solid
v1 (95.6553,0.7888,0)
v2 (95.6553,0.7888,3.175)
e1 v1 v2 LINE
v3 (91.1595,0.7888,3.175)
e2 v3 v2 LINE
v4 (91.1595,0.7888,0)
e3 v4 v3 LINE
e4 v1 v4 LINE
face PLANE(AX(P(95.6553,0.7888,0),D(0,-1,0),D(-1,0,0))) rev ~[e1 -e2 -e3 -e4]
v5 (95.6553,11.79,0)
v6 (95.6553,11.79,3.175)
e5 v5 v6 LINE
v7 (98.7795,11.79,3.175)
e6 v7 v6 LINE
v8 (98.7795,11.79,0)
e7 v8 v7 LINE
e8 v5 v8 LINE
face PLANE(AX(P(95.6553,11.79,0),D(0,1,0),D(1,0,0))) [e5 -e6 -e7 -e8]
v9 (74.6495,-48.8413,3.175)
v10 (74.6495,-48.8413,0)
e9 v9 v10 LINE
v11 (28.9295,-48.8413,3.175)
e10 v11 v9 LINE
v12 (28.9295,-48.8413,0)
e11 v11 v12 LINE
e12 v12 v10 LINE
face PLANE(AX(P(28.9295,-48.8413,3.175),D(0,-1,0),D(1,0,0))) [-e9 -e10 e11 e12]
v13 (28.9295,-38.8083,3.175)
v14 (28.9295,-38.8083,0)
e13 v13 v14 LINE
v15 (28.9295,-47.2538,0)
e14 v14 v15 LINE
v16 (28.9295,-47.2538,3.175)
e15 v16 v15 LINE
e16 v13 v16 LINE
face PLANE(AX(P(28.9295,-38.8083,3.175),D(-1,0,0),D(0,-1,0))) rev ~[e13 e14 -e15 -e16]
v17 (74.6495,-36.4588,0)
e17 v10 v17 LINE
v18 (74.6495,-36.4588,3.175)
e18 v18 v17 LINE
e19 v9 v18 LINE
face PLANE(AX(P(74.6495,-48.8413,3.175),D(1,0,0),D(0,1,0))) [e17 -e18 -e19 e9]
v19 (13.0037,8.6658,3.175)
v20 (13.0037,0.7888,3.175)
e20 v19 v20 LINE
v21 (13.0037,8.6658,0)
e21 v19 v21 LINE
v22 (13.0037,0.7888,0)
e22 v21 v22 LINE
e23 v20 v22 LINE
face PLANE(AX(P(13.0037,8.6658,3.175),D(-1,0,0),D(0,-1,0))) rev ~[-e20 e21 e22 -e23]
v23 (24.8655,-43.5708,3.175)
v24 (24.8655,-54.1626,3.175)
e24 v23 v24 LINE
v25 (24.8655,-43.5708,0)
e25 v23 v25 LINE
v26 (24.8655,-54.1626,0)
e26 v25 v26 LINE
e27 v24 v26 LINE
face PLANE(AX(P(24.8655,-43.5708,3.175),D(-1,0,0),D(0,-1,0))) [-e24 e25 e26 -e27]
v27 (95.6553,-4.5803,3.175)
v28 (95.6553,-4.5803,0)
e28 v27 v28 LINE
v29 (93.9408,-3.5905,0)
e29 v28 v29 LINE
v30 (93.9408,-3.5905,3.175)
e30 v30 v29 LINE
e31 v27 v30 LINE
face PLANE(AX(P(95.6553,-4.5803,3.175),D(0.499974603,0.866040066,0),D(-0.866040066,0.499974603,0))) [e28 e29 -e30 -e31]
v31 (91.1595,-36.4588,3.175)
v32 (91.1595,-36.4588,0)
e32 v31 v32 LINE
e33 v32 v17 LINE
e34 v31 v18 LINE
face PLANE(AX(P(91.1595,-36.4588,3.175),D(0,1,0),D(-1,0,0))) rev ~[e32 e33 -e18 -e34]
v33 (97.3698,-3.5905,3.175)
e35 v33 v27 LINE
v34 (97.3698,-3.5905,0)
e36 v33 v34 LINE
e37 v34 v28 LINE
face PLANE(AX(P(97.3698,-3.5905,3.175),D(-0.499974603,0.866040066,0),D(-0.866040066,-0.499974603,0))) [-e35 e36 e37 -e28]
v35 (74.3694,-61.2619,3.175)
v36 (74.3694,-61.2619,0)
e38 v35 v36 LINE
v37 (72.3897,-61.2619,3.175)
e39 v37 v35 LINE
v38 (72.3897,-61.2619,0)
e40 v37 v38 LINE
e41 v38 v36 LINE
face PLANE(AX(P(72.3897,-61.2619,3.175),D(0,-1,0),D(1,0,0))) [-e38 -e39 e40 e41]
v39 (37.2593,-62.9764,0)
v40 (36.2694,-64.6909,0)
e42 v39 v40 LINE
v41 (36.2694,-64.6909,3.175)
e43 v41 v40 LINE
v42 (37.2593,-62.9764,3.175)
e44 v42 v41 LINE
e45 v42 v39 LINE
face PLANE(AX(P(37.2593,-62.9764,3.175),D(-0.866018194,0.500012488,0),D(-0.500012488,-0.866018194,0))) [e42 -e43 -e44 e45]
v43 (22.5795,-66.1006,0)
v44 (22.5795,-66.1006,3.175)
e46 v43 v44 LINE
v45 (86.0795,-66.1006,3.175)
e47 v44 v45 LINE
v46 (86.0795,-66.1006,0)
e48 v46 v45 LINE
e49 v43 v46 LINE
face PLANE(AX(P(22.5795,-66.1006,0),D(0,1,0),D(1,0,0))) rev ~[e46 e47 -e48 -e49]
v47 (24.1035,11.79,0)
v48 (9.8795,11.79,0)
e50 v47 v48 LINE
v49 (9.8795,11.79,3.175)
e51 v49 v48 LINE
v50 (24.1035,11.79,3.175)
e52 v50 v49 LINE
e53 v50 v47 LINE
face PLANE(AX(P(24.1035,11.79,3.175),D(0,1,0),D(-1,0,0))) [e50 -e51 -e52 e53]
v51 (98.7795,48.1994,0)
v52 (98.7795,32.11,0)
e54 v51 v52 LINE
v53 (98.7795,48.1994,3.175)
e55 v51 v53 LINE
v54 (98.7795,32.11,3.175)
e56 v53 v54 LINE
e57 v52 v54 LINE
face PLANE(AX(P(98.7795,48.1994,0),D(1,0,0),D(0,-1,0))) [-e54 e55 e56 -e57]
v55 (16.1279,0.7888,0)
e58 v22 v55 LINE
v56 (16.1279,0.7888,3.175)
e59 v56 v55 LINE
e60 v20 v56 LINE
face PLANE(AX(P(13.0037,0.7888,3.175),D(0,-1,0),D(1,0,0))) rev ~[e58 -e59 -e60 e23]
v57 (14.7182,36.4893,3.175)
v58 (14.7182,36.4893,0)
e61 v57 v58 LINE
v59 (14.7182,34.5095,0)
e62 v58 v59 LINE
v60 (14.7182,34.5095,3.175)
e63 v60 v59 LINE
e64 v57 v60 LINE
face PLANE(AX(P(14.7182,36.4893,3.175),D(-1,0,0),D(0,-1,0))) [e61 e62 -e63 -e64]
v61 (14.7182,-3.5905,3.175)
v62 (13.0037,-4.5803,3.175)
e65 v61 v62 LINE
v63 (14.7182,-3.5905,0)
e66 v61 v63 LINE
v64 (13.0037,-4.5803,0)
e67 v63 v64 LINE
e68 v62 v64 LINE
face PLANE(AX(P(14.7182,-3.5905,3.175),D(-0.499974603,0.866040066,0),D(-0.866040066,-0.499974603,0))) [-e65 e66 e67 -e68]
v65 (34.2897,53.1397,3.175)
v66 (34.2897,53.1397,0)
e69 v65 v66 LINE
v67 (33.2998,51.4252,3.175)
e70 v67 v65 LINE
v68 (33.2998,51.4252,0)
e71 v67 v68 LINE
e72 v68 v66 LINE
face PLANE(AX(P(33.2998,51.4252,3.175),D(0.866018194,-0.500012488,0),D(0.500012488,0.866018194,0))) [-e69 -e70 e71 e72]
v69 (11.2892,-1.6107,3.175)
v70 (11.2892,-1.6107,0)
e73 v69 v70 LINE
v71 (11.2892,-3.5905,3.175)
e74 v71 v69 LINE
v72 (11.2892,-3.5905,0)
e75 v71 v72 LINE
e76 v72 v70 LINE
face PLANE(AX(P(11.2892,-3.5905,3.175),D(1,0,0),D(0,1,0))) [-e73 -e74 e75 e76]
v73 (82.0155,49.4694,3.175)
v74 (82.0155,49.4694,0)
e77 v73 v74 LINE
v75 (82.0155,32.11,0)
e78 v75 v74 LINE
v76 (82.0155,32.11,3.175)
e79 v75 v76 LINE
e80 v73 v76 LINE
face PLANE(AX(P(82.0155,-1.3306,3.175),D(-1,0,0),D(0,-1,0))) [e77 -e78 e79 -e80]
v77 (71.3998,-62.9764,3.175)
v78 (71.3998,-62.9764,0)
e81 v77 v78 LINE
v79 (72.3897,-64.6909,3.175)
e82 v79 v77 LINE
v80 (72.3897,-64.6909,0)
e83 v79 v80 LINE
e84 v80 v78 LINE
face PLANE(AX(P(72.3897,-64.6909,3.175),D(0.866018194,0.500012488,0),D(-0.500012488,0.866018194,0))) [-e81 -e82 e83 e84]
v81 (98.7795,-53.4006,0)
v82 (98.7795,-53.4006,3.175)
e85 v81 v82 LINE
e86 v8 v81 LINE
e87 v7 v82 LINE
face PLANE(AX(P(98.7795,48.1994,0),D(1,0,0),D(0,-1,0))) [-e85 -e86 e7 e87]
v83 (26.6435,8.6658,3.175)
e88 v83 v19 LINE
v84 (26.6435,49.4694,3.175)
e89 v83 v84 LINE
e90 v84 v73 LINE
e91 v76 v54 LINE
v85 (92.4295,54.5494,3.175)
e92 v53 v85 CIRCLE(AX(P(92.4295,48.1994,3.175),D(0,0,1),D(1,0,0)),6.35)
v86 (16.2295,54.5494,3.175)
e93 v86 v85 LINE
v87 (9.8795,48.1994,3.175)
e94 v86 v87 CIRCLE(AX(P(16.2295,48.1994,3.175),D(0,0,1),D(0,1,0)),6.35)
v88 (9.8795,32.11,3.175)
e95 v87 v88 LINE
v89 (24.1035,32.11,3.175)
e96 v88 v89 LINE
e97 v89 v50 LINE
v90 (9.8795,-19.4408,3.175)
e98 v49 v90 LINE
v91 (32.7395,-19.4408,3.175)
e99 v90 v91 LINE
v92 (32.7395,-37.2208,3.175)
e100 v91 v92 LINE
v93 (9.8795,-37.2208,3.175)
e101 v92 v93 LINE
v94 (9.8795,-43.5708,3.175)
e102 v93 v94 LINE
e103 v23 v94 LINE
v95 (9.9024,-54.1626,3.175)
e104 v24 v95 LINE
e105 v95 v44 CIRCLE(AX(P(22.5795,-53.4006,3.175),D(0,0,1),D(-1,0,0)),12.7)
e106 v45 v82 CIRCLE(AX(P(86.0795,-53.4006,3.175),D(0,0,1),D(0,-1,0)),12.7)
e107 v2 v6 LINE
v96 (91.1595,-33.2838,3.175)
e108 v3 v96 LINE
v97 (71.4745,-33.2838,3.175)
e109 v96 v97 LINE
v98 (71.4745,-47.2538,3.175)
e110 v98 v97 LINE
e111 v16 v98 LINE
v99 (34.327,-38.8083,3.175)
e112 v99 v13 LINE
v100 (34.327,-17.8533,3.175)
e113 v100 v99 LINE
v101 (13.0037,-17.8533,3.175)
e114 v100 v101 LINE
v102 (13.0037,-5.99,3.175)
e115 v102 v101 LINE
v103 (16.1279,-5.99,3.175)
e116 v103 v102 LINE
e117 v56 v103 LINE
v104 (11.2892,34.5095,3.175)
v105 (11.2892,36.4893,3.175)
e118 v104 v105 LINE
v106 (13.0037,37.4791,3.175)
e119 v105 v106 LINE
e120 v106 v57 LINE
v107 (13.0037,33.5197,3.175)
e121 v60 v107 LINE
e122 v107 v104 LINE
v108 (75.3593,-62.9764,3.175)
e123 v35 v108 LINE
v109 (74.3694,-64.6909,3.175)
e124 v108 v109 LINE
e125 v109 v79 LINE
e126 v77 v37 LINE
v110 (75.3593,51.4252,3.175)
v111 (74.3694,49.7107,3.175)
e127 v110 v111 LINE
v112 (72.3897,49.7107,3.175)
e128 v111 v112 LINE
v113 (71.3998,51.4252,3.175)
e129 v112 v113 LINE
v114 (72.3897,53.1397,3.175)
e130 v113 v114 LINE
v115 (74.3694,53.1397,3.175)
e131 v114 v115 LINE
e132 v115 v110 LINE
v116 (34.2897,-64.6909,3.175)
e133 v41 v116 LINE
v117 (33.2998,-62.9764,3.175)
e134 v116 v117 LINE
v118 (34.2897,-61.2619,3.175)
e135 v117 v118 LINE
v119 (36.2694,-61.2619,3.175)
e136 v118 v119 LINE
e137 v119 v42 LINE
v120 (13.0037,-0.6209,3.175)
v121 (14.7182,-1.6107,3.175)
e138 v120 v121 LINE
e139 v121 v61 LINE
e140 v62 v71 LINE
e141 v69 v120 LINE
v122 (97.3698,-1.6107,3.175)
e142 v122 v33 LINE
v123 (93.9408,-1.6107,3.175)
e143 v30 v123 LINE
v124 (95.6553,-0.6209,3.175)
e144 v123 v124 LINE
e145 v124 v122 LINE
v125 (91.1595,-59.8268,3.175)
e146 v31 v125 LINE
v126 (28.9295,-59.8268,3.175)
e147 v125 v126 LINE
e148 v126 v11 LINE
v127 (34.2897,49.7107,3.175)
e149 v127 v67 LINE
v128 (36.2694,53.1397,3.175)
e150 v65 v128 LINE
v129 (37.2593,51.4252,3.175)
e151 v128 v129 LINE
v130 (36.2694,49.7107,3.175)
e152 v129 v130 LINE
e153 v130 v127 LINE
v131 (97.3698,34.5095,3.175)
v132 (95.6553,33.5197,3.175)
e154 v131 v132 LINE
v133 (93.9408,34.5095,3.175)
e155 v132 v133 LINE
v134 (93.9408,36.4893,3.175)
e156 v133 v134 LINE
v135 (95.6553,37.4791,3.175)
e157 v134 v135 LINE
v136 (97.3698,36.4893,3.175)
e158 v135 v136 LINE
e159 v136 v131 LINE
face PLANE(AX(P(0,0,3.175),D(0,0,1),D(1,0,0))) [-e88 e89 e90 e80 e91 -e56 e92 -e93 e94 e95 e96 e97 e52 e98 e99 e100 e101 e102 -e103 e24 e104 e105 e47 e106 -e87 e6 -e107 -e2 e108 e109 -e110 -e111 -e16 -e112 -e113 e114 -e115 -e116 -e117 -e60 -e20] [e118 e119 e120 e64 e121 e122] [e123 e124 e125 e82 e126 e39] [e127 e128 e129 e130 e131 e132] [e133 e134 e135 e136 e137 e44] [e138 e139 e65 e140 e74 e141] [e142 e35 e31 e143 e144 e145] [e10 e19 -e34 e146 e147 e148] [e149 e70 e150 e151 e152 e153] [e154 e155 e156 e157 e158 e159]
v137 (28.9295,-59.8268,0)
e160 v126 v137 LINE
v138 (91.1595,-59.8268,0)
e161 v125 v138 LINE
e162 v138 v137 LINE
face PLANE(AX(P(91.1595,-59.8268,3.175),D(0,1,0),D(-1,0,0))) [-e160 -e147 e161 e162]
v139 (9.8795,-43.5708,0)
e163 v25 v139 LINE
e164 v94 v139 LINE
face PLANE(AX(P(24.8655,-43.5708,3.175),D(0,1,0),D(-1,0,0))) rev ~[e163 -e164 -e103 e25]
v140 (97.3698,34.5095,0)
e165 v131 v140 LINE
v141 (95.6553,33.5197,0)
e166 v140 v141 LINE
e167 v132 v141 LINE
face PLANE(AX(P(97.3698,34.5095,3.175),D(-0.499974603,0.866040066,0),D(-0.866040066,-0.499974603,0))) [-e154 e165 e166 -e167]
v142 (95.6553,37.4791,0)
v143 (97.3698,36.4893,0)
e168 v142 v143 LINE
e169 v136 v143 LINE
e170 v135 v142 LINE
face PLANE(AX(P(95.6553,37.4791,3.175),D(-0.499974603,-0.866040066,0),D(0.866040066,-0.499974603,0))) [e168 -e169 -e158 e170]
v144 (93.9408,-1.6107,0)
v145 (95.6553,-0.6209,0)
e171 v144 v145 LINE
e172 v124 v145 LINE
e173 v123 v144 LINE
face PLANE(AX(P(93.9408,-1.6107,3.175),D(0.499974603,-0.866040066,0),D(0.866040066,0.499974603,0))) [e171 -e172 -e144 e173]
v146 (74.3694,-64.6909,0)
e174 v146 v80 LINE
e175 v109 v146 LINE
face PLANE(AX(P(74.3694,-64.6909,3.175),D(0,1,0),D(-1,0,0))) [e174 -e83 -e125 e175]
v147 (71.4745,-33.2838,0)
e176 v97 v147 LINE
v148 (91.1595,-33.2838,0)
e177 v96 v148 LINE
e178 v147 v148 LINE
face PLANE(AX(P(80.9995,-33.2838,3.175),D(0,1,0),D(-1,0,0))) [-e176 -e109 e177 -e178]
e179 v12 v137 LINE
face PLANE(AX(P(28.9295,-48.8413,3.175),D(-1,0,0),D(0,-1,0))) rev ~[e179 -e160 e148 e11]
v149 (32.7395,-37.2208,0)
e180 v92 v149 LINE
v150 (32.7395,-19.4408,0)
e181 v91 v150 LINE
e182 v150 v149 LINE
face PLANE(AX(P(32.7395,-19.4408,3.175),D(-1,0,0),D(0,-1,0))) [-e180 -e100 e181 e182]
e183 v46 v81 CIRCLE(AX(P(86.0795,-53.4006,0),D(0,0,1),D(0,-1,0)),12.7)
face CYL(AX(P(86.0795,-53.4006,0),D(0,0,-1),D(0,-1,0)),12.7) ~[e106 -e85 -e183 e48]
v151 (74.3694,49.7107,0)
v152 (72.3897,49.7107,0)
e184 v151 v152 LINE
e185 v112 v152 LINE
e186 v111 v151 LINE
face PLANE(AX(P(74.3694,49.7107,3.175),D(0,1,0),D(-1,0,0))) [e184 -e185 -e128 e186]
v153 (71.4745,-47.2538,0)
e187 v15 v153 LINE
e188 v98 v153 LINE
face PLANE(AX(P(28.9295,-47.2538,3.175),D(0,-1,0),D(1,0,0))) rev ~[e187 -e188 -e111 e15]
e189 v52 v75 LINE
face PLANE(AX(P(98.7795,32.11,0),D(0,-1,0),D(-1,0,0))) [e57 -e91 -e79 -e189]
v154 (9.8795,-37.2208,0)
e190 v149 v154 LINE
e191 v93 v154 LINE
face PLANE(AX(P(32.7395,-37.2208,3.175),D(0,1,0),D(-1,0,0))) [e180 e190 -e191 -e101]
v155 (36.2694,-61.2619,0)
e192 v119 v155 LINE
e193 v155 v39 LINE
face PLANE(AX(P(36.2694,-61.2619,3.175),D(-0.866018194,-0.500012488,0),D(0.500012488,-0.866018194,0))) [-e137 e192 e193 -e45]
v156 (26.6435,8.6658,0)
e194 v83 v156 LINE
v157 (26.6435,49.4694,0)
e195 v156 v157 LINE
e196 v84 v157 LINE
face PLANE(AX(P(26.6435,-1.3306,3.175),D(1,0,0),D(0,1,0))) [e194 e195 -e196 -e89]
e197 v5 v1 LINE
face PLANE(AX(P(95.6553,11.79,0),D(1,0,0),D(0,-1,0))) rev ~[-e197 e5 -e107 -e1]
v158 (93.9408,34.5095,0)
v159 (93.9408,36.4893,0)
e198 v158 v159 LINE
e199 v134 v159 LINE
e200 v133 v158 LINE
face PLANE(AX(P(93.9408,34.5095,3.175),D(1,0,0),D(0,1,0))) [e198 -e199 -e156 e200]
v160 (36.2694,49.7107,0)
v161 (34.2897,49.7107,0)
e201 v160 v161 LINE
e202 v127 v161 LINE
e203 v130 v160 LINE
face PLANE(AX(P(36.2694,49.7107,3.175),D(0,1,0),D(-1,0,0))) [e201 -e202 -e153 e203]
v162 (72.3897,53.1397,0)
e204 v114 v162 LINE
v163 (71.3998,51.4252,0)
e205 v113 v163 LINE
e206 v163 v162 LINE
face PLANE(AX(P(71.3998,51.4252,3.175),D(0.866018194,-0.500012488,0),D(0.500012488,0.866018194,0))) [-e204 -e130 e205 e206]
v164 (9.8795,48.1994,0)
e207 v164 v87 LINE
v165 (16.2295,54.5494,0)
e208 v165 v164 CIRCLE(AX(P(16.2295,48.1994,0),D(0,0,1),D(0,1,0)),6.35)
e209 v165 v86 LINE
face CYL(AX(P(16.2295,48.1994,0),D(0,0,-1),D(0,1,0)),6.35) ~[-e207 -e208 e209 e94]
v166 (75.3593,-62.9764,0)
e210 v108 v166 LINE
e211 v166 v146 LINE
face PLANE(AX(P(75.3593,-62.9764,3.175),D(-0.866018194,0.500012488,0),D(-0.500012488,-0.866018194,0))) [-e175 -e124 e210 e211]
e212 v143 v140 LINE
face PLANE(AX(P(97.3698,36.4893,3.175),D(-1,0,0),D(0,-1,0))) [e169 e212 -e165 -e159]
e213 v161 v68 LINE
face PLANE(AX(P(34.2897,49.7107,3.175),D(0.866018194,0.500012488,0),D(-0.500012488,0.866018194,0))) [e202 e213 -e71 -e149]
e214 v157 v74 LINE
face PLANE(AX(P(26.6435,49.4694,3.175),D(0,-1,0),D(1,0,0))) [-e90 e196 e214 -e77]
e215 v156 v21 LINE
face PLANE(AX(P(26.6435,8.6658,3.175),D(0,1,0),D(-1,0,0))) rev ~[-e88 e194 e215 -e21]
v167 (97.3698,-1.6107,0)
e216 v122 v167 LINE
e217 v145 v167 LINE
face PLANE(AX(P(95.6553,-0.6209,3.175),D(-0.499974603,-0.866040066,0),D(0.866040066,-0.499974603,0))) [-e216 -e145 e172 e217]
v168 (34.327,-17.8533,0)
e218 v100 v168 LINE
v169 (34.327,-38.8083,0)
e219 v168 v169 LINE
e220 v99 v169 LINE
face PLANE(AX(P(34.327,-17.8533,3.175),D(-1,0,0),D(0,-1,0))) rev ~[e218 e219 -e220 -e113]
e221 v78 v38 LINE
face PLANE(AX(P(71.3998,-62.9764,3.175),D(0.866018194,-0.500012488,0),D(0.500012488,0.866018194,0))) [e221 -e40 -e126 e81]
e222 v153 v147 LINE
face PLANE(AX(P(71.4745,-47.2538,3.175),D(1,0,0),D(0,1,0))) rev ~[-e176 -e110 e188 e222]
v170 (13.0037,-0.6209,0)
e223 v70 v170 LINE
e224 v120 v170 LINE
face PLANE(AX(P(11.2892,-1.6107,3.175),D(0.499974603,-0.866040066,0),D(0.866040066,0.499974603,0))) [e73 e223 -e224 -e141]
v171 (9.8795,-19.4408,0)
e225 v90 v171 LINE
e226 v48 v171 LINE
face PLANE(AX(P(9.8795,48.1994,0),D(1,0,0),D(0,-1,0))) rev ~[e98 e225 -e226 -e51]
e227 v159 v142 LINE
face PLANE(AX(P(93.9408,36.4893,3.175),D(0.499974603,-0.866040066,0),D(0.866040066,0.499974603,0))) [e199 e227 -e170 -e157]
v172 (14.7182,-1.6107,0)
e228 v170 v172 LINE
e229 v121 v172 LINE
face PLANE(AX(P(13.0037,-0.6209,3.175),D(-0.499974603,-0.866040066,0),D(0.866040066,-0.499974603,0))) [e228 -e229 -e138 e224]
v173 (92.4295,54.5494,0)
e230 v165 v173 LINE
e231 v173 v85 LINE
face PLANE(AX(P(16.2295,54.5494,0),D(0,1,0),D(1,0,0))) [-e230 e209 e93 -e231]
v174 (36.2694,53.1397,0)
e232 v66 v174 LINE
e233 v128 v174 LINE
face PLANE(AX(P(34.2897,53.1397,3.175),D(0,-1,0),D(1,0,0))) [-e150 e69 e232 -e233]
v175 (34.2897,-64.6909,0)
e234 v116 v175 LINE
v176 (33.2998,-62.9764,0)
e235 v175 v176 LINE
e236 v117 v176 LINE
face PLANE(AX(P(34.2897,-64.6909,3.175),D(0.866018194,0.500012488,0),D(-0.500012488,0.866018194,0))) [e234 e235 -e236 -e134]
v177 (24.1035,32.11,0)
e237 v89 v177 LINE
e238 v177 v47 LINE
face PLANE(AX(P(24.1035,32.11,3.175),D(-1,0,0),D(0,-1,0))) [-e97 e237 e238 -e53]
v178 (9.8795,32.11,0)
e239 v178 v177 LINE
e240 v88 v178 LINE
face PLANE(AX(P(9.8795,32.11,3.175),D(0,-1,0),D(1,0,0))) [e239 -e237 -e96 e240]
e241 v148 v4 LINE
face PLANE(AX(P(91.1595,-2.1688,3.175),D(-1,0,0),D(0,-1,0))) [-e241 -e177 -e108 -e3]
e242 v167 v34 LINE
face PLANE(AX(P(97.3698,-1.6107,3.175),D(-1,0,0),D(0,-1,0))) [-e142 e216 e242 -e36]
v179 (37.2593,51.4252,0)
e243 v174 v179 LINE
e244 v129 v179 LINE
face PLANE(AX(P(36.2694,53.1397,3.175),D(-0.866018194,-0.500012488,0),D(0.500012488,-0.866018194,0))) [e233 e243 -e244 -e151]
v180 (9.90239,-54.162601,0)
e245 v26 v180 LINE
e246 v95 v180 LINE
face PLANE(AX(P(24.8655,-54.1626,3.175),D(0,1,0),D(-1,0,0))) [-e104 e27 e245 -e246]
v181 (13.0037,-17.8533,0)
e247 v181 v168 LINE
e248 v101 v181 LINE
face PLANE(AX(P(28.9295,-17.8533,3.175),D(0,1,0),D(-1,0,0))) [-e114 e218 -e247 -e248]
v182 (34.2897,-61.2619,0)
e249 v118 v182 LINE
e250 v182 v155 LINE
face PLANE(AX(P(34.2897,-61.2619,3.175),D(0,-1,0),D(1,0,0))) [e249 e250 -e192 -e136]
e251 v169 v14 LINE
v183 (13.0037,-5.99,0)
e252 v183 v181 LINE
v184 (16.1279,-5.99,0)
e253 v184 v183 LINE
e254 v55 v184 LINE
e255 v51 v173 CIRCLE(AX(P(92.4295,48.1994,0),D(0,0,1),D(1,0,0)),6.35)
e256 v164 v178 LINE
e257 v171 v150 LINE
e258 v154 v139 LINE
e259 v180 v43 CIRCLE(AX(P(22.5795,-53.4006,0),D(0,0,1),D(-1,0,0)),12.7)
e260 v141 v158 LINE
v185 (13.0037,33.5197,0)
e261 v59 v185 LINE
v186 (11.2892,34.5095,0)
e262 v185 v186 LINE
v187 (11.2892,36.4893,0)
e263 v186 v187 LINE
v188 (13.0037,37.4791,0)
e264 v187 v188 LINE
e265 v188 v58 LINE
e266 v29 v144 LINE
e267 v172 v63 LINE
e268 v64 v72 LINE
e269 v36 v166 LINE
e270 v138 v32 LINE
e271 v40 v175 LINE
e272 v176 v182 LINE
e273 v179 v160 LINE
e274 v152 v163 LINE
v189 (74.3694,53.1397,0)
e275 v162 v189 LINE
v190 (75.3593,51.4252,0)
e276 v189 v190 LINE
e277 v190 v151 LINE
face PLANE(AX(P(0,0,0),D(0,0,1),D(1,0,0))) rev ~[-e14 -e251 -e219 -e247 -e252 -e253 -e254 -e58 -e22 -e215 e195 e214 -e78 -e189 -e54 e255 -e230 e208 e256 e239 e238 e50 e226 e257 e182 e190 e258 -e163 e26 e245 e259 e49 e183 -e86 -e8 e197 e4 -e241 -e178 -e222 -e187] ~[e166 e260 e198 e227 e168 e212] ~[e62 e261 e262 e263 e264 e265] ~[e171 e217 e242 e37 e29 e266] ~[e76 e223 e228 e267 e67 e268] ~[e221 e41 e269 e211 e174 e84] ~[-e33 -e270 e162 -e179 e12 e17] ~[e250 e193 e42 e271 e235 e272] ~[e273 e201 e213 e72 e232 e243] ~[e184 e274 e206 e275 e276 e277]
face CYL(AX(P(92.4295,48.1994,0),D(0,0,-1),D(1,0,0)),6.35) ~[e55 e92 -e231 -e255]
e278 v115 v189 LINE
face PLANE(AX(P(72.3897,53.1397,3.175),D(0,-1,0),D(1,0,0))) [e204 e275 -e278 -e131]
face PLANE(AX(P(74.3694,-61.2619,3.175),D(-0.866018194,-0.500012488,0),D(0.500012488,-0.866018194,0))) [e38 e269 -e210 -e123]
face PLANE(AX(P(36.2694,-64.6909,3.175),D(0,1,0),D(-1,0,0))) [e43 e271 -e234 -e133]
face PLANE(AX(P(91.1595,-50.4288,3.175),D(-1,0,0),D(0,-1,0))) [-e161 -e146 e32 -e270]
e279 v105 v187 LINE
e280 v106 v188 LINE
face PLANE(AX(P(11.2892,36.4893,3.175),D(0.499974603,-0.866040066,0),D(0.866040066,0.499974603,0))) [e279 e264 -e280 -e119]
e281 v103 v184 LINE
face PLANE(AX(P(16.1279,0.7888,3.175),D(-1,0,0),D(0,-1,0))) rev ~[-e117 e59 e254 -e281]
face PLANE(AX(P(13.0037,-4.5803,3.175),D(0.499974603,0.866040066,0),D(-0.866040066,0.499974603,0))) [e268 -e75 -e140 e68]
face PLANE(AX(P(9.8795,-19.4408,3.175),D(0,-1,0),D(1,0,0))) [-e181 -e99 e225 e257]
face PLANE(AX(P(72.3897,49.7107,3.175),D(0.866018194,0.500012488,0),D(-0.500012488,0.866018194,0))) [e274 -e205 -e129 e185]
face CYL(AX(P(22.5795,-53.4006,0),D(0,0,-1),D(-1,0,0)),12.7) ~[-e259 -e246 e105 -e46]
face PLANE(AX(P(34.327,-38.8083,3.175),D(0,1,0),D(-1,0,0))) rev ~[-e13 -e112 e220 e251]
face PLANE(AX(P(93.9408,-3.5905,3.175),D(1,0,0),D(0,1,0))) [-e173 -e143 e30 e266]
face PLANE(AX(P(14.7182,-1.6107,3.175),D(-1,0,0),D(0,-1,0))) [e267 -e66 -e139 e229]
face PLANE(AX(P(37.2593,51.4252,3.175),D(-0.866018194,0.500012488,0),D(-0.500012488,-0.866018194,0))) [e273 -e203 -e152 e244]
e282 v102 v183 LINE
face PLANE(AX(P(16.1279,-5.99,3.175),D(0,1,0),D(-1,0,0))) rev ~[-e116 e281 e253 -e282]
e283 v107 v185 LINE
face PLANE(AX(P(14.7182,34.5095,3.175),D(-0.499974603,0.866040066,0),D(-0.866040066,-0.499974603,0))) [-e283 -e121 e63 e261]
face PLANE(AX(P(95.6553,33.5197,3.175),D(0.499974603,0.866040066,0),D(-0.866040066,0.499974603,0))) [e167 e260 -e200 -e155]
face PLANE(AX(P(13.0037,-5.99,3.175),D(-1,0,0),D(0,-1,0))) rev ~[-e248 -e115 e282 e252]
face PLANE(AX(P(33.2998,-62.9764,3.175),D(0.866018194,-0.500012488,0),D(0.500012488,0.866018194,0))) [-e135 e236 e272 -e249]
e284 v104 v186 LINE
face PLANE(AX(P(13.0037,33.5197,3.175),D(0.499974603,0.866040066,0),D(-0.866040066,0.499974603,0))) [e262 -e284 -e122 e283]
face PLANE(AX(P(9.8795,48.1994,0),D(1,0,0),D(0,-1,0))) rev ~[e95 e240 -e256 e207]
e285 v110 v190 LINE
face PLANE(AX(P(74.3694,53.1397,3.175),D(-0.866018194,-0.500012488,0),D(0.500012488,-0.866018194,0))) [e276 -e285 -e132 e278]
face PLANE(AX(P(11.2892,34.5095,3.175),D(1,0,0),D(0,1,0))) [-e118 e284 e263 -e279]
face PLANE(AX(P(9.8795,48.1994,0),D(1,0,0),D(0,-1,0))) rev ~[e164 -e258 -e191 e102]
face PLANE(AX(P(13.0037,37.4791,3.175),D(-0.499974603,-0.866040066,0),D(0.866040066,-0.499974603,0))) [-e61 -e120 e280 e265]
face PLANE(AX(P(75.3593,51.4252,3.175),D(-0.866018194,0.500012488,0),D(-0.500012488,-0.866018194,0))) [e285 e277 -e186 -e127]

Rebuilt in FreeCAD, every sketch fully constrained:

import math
import FreeCAD as App
import Part
import Sketcher

V = App.Vector
Q = App.Units.Quantity


def add_polygon(sketch, points):
    """Adds a closed chain of lines whose ends are joined by coincident constraints."""
    first, n = sketch.GeometryCount, len(points)
    for a, b in zip(points, points[1:] + points[:1]):
        sketch.addGeometry(Part.LineSegment(App.Vector(*a, 0), App.Vector(*b, 0)), False)
    for i in range(n):
        sketch.addConstraint(Sketcher.Constraint("Coincident", first + i, 2, first + (i + 1) % n, 1))

doc = App.newDocument("Part")
body = doc.addObject("PartDesign::Body", "Body")

# Sketch on XY plane
sketch1 = body.newObject("Sketcher::SketchObject", "Sketch")
sketch1.AttachmentSupport = (doc.getObject("XY_Plane"), [""])
sketch1.MapMode = "FlatFace"
sketch1.addGeometry(Part.ArcOfCircle(Part.Circle(V(16.2295, 48.1994, 0), V(0, 0, 1), 6.35), math.radians(90), math.radians(180)), False)
sketch1.addGeometry(Part.LineSegment(V(9.8795, 48.1994, 0), V(9.8795, -53.4006, 0)), False)
sketch1.addGeometry(Part.ArcOfCircle(Part.Circle(V(22.5795, -53.4006, 0), V(0, 0, 1), 12.7), math.radians(180), math.radians(270)), False)
sketch1.addGeometry(Part.LineSegment(V(22.5795, -66.1006, 0), V(86.0795, -66.1006, 0)), False)
sketch1.addGeometry(Part.ArcOfCircle(Part.Circle(V(86.0795, -53.4006, 0), V(0, 0, 1), 12.7), math.radians(-90), math.radians(0)), False)
sketch1.addGeometry(Part.LineSegment(V(98.7795, -53.4006, 0), V(98.7795, 48.1994, 0)), False)
sketch1.addGeometry(Part.ArcOfCircle(Part.Circle(V(92.4295, 48.1994, 0), V(0, 0, 1), 6.35), math.radians(0), math.radians(90)), False)
sketch1.addGeometry(Part.LineSegment(V(92.4295, 54.5494, 0), V(16.2295, 54.5494, 0)), False)
sketch1.addConstraint(Sketcher.Constraint("Tangent", 0, 2, 1, 1))
sketch1.addConstraint(Sketcher.Constraint("Tangent", 1, 2, 2, 1))
sketch1.addConstraint(Sketcher.Constraint("Tangent", 2, 2, 3, 1))
sketch1.addConstraint(Sketcher.Constraint("Tangent", 3, 2, 4, 1))
sketch1.addConstraint(Sketcher.Constraint("Tangent", 4, 2, 5, 1))
sketch1.addConstraint(Sketcher.Constraint("Tangent", 5, 2, 6, 1))
sketch1.addConstraint(Sketcher.Constraint("Tangent", 6, 2, 7, 1))
sketch1.addConstraint(Sketcher.Constraint("Tangent", 7, 2, 0, 1))
sketch1.addConstraint(Sketcher.Constraint("Vertical", 1))
sketch1.addConstraint(Sketcher.Constraint("Horizontal", 3))
sketch1.addConstraint(Sketcher.Constraint("Vertical", 5))
sketch1.addConstraint(Sketcher.Constraint("Horizontal", 7))
sketch1.addConstraint(Sketcher.Constraint("Equal", 2, 4))
sketch1.addConstraint(Sketcher.Constraint("Equal", 0, 6))
sketch1.addConstraint(Sketcher.Constraint("Radius", 2, Q("0.5 in")))
sketch1.addConstraint(Sketcher.Constraint("Radius", 0, Q("0.25 in")))
sketch1.addConstraint(Sketcher.Constraint("DistanceX", 1, 2, 4, 2, Q("3.5 in")))
sketch1.addConstraint(Sketcher.Constraint("DistanceY", 1, 2, 1, 1, Q("4 in")))
sketch1.addConstraint(Sketcher.Constraint("DistanceX", -1, 1, 0, 3, 16.2295))
sketch1.addConstraint(Sketcher.Constraint("DistanceY", -1, 1, 0, 3, 48.1994))
pad1 = body.newObject("PartDesign::Pad", "Pad")
pad1.Profile = sketch1
pad1.Length = Q("0.125 in")

# Sketch on XY plane
sketch2 = body.newObject("Sketcher::SketchObject", "Sketch001")
sketch2.AttachmentSupport = (doc.getObject("XY_Plane"), [""])
sketch2.MapMode = "FlatFace"
sketch2.AttachmentOffset = App.Placement(V(0, 0, 0.125 * 25.4), App.Rotation())
add_polygon(sketch2, [(82.0155, 49.4694), (26.6435, 49.4694), (26.6435, -1.3306), (82.0155, -1.3306)])  # lines 0-3
sketch2.addConstraint(Sketcher.Constraint("Horizontal", 0))
sketch2.addConstraint(Sketcher.Constraint("Vertical", 1))
sketch2.addConstraint(Sketcher.Constraint("Horizontal", 2))
sketch2.addConstraint(Sketcher.Constraint("Vertical", 3))
sketch2.addConstraint(Sketcher.Constraint("DistanceY", 1, 2, 1, 1, Q("2 in")))
sketch2.addConstraint(Sketcher.Constraint("DistanceX", 0, 2, 0, 1, Q("2.18 in")))
sketch2.addConstraint(Sketcher.Constraint("DistanceX", -1, 1, 0, 2, 26.6435))
sketch2.addConstraint(Sketcher.Constraint("DistanceY", -1, 1, 0, 2, 49.4694))
pocket1 = body.newObject("PartDesign::Pocket", "Pocket")
pocket1.Profile = sketch2
pocket1.Type = "ThroughAll"

# Sketch on XY plane
sketch3 = body.newObject("Sketcher::SketchObject", "Sketch002")
sketch3.AttachmentSupport = (doc.getObject("XY_Plane"), [""])
sketch3.MapMode = "FlatFace"
sketch3.AttachmentOffset = App.Placement(V(0, 0, 0.125 * 25.4), App.Rotation())
add_polygon(sketch3, [(9.8795, -19.4408), (9.8795, -37.2208), (32.7395, -37.2208), (32.7395, -19.4408)])  # lines 0-3
sketch3.addConstraint(Sketcher.Constraint("Vertical", 0))
sketch3.addConstraint(Sketcher.Constraint("Horizontal", 1))
sketch3.addConstraint(Sketcher.Constraint("Vertical", 2))
sketch3.addConstraint(Sketcher.Constraint("Horizontal", 3))
sketch3.addConstraint(Sketcher.Constraint("DistanceX", 1, 1, 1, 2, Q("0.9 in")))
sketch3.addConstraint(Sketcher.Constraint("DistanceY", 0, 2, 0, 1, Q("0.7 in")))
sketch3.addConstraint(Sketcher.Constraint("DistanceX", -1, 1, 0, 2, 9.8795))
sketch3.addConstraint(Sketcher.Constraint("DistanceY", 0, 2, -1, 1, 37.2208))
pocket2 = body.newObject("PartDesign::Pocket", "Pocket001")
pocket2.Profile = sketch3
pocket2.Type = "ThroughAll"

# Sketch on XY plane
sketch4 = body.newObject("Sketcher::SketchObject", "Sketch003")
sketch4.AttachmentSupport = (doc.getObject("XY_Plane"), [""])
sketch4.MapMode = "FlatFace"
sketch4.AttachmentOffset = App.Placement(V(0, 0, 0.125 * 25.4), App.Rotation())
sketch4.addGeometry(Part.LineSegment(V(9.8795, -43.5708, 0), V(9.8795, -53.4006, 0)), False)
sketch4.addGeometry(Part.ArcOfCircle(Part.Circle(V(22.5795, -53.4006, 0), V(0, 0, 1), 12.7), math.radians(180), math.radians(183.439818)), False)
sketch4.addGeometry(Part.LineSegment(V(9.9024, -54.1626, 0), V(24.8655, -54.1626, 0)), False)
sketch4.addGeometry(Part.LineSegment(V(24.8655, -54.1626, 0), V(24.8655, -43.5708, 0)), False)
sketch4.addGeometry(Part.LineSegment(V(24.8655, -43.5708, 0), V(9.8795, -43.5708, 0)), False)
sketch4.addConstraint(Sketcher.Constraint("Tangent", 0, 2, 1, 1))
sketch4.addConstraint(Sketcher.Constraint("Coincident", 1, 2, 2, 1))
sketch4.addConstraint(Sketcher.Constraint("Coincident", 2, 2, 3, 1))
sketch4.addConstraint(Sketcher.Constraint("Coincident", 3, 2, 4, 1))
sketch4.addConstraint(Sketcher.Constraint("Coincident", 4, 2, 0, 1))
sketch4.addConstraint(Sketcher.Constraint("Vertical", 0))
sketch4.addConstraint(Sketcher.Constraint("Horizontal", 2))
sketch4.addConstraint(Sketcher.Constraint("Vertical", 3))
sketch4.addConstraint(Sketcher.Constraint("Horizontal", 4))
sketch4.addConstraint(Sketcher.Constraint("DistanceX", 4, 2, 4, 1, Q("0.59 in")))
sketch4.addConstraint(Sketcher.Constraint("Radius", 1, Q("0.5 in")))
sketch4.addConstraint(Sketcher.Constraint("DistanceY", 0, 2, 0, 1, Q("0.387 in")))
sketch4.addConstraint(Sketcher.Constraint("DistanceY", 3, 1, 3, 2, Q("0.417 in")))
sketch4.addConstraint(Sketcher.Constraint("DistanceX", -1, 1, 1, 3, 22.5795))
sketch4.addConstraint(Sketcher.Constraint("DistanceY", 1, 3, -1, 1, 53.4006))
pocket3 = body.newObject("PartDesign::Pocket", "Pocket002")
pocket3.Profile = sketch4
pocket3.Type = "ThroughAll"

# Sketch on XY plane
sketch5 = body.newObject("Sketcher::SketchObject", "Sketch004")
sketch5.AttachmentSupport = (doc.getObject("XY_Plane"), [""])
sketch5.MapMode = "FlatFace"
sketch5.AttachmentOffset = App.Placement(V(0, 0, 0.125 * 25.4), App.Rotation())
add_polygon(sketch5, [(91.1595, -2.1688), (28.9295, -2.1688), (28.9295, -11.5668), (91.1595, -11.5668)])  # lines 0-3
add_polygon(sketch5, [(91.1595, -50.4288), (28.9295, -50.4288), (28.9295, -59.8268), (91.1595, -59.8268)])  # lines 4-7
sketch5.addConstraint(Sketcher.Constraint("Horizontal", 0))
sketch5.addConstraint(Sketcher.Constraint("Vertical", 1))
sketch5.addConstraint(Sketcher.Constraint("Horizontal", 2))
sketch5.addConstraint(Sketcher.Constraint("Vertical", 3))
sketch5.addConstraint(Sketcher.Constraint("Horizontal", 4))
sketch5.addConstraint(Sketcher.Constraint("Vertical", 5))
sketch5.addConstraint(Sketcher.Constraint("Horizontal", 6))
sketch5.addConstraint(Sketcher.Constraint("Vertical", 7))
sketch5.addConstraint(Sketcher.Constraint("Vertical", 1, 2, 4, 2))
sketch5.addConstraint(Sketcher.Constraint("Vertical", 3, 2, 6, 2))
sketch5.addConstraint(Sketcher.Constraint("Equal", 3, 5))
sketch5.addConstraint(Sketcher.Constraint("DistanceX", 0, 2, 0, 1, Q("2.45 in")))
sketch5.addConstraint(Sketcher.Constraint("DistanceY", 1, 2, 1, 1, Q("0.37 in")))
sketch5.addConstraint(Sketcher.Constraint("DistanceY", 4, 2, 0, 2, Q("1.9 in")))
sketch5.addConstraint(Sketcher.Constraint("DistanceX", -1, 1, 0, 2, 28.9295))
sketch5.addConstraint(Sketcher.Constraint("DistanceY", 0, 2, -1, 1, 2.1688))
pocket4 = body.newObject("PartDesign::Pocket", "Pocket003")
pocket4.Profile = sketch5
pocket4.Type = "ThroughAll"

# Sketch on XY plane
sketch6 = body.newObject("Sketcher::SketchObject", "Sketch005")
sketch6.AttachmentSupport = (doc.getObject("XY_Plane"), [""])
sketch6.MapMode = "FlatFace"
sketch6.AttachmentOffset = App.Placement(V(0, 0, 0.125 * 25.4), App.Rotation())
add_polygon(sketch6, [(74.6495, -33.2838), (74.6495, -14.7418), (28.9295, -14.7418), (28.9295, -17.8533), (34.327, -17.8533), (34.327, -38.8083), (28.9295, -38.8083), (28.9295, -47.2538), (71.4745, -47.2538), (71.4745, -33.2838)])  # lines 0-9
add_polygon(sketch6, [(91.1595, -36.4588), (74.6495, -36.4588), (74.6495, -48.8413), (28.9295, -48.8413), (28.9295, -50.4288), (91.1595, -50.4288)])  # lines 10-15
sketch6.addConstraint(Sketcher.Constraint("Vertical", 0))
sketch6.addConstraint(Sketcher.Constraint("Horizontal", 1))
sketch6.addConstraint(Sketcher.Constraint("Vertical", 2))
sketch6.addConstraint(Sketcher.Constraint("Horizontal", 3))
sketch6.addConstraint(Sketcher.Constraint("Vertical", 4))
sketch6.addConstraint(Sketcher.Constraint("Horizontal", 5))
sketch6.addConstraint(Sketcher.Constraint("Vertical", 6))
sketch6.addConstraint(Sketcher.Constraint("Horizontal", 7))
sketch6.addConstraint(Sketcher.Constraint("Vertical", 8))
sketch6.addConstraint(Sketcher.Constraint("Horizontal", 9))
sketch6.addConstraint(Sketcher.Constraint("Horizontal", 10))
sketch6.addConstraint(Sketcher.Constraint("Vertical", 11))
sketch6.addConstraint(Sketcher.Constraint("Horizontal", 12))
sketch6.addConstraint(Sketcher.Constraint("Vertical", 13))
sketch6.addConstraint(Sketcher.Constraint("Horizontal", 14))
sketch6.addConstraint(Sketcher.Constraint("Vertical", 15))
sketch6.addConstraint(Sketcher.Constraint("Vertical", 2, 2, 5, 2))
sketch6.addConstraint(Sketcher.Constraint("Vertical", 9, 2, 10, 2))
sketch6.addConstraint(Sketcher.Constraint("Vertical", 6, 2, 12, 2))
sketch6.addConstraint(Sketcher.Constraint("Equal", 8, 15))
sketch6.addConstraint(Sketcher.Constraint("DistanceY", 8, 1, 8, 2, Q("0.55 in")))
sketch6.addConstraint(Sketcher.Constraint("DistanceX", 9, 1, 9, 2, Q("0.125 in")))
sketch6.addConstraint(Sketcher.Constraint("DistanceY", 13, 2, 13, 1, Q("0.0625 in")))
sketch6.addConstraint(Sketcher.Constraint("DistanceX", 1, 2, 1, 1, Q("1.8 in")))
sketch6.addConstraint(Sketcher.Constraint("DistanceY", 10, 2, 9, 2, Q("0.125 in")))
sketch6.addConstraint(Sketcher.Constraint("DistanceX", 10, 2, 10, 1, Q("0.65 in")))
sketch6.addConstraint(Sketcher.Constraint("DistanceY", 0, 1, 0, 2, Q("0.73 in")))
sketch6.addConstraint(Sketcher.Constraint("DistanceY", 4, 2, 4, 1, Q("0.825 in")))
sketch6.addConstraint(Sketcher.Constraint("DistanceY", 12, 2, 2, 2, Q("1.22 in")))
sketch6.addConstraint(Sketcher.Constraint("DistanceX", 3, 1, 3, 2, Q("0.2125 in")))
sketch6.addConstraint(Sketcher.Constraint("DistanceX", -1, 1, 0, 2, 74.6495))
sketch6.addConstraint(Sketcher.Constraint("DistanceY", 0, 2, -1, 1, 14.7418))
pocket5 = body.newObject("PartDesign::Pocket", "Pocket004")
pocket5.Profile = sketch6
pocket5.Type = "ThroughAll"

# Sketch on XY plane
sketch7 = body.newObject("Sketcher::SketchObject", "Sketch006")
sketch7.AttachmentSupport = (doc.getObject("XY_Plane"), [""])
sketch7.MapMode = "FlatFace"
sketch7.AttachmentOffset = App.Placement(V(0, 0, 0.125 * 25.4), App.Rotation())
add_polygon(sketch7, [(80.9995, -14.7418), (74.6495, -14.7418), (74.6495, -33.2838), (80.9995, -33.2838)])  # lines 0-3
sketch7.addConstraint(Sketcher.Constraint("Horizontal", 0))
sketch7.addConstraint(Sketcher.Constraint("Vertical", 1))
sketch7.addConstraint(Sketcher.Constraint("Horizontal", 2))
sketch7.addConstraint(Sketcher.Constraint("Vertical", 3))
sketch7.addConstraint(Sketcher.Constraint("DistanceX", 0, 2, 0, 1, Q("0.25 in")))
sketch7.addConstraint(Sketcher.Constraint("DistanceY", 1, 2, 1, 1, Q("0.73 in")))
sketch7.addConstraint(Sketcher.Constraint("DistanceX", -1, 1, 0, 2, 74.6495))
sketch7.addConstraint(Sketcher.Constraint("DistanceY", 0, 2, -1, 1, 14.7418))
pocket6 = body.newObject("PartDesign::Pocket", "Pocket005")
pocket6.Profile = sketch7
pocket6.Type = "ThroughAll"

# Sketch on XY plane
sketch8 = body.newObject("Sketcher::SketchObject", "Sketch007")
sketch8.AttachmentSupport = (doc.getObject("XY_Plane"), [""])
sketch8.MapMode = "FlatFace"
sketch8.AttachmentOffset = App.Placement(V(0, 0, 0.125 * 25.4), App.Rotation())
add_polygon(sketch8, [(37.2593, 51.4252), (36.2694, 53.1397), (34.2897, 53.1397), (33.2998, 51.4252), (34.2897, 49.7107), (36.2694, 49.7107)])  # lines 0-5
add_polygon(sketch8, [(36.2694, -64.6909), (37.2593, -62.9764), (36.2694, -61.2619), (34.2897, -61.2619), (33.2998, -62.9764), (34.2897, -64.6909)])  # lines 6-11
add_polygon(sketch8, [(72.3897, -64.6909), (74.3694, -64.6909), (75.3593, -62.9764), (74.3694, -61.2619), (72.3897, -61.2619), (71.3998, -62.9764)])  # lines 12-17
add_polygon(sketch8, [(75.3593, 51.4252), (74.3694, 53.1397), (72.3897, 53.1397), (71.3998, 51.4252), (72.3897, 49.7107), (74.3694, 49.7107)])  # lines 18-23
add_polygon(sketch8, [(11.2892, 34.5095), (13.0037, 33.5197), (14.7182, 34.5095), (14.7182, 36.4893), (13.0037, 37.4791), (11.2892, 36.4893)])  # lines 24-29
add_polygon(sketch8, [(11.2892, -3.5905), (13.0037, -4.5803), (14.7182, -3.5905), (14.7182, -1.6107), (13.0037, -0.6209), (11.2892, -1.6107)])  # lines 30-35
add_polygon(sketch8, [(93.9408, 34.5095), (95.6553, 33.5197), (97.3698, 34.5095), (97.3698, 36.4893), (95.6553, 37.4791), (93.9408, 36.4893)])  # lines 36-41
add_polygon(sketch8, [(97.3698, -3.5905), (97.3698, -1.6107), (95.6553, -0.6209), (93.9408, -1.6107), (93.9408, -3.5905), (95.6553, -4.5803)])  # lines 42-47
sketch8.addConstraint(Sketcher.Constraint("Horizontal", 1))
sketch8.addConstraint(Sketcher.Constraint("Horizontal", 4))
sketch8.addConstraint(Sketcher.Constraint("Horizontal", 8))
sketch8.addConstraint(Sketcher.Constraint("Horizontal", 11))
sketch8.addConstraint(Sketcher.Constraint("Horizontal", 12))
sketch8.addConstraint(Sketcher.Constraint("Horizontal", 15))
sketch8.addConstraint(Sketcher.Constraint("Horizontal", 19))
sketch8.addConstraint(Sketcher.Constraint("Horizontal", 22))
sketch8.addConstraint(Sketcher.Constraint("Vertical", 26))
sketch8.addConstraint(Sketcher.Constraint("Vertical", 29))
sketch8.addConstraint(Sketcher.Constraint("Vertical", 32))
sketch8.addConstraint(Sketcher.Constraint("Vertical", 35))
sketch8.addConstraint(Sketcher.Constraint("Vertical", 38))
sketch8.addConstraint(Sketcher.Constraint("Vertical", 41))
sketch8.addConstraint(Sketcher.Constraint("Vertical", 42))
sketch8.addConstraint(Sketcher.Constraint("Vertical", 45))
sketch8.addConstraint(Sketcher.Constraint("Parallel", 0, 3))
sketch8.addConstraint(Sketcher.Constraint("Parallel", 2, 5))
sketch8.addConstraint(Sketcher.Constraint("Parallel", 5, 6))
sketch8.addConstraint(Sketcher.Constraint("Parallel", 3, 7))
sketch8.addConstraint(Sketcher.Constraint("Parallel", 6, 9))
sketch8.addConstraint(Sketcher.Constraint("Parallel", 7, 10))
sketch8.addConstraint(Sketcher.Constraint("Parallel", 9, 13))
sketch8.addConstraint(Sketcher.Constraint("Parallel", 10, 14))
sketch8.addConstraint(Sketcher.Constraint("Parallel", 13, 16))
sketch8.addConstraint(Sketcher.Constraint("Parallel", 14, 17))
sketch8.addConstraint(Sketcher.Constraint("Parallel", 17, 18))
sketch8.addConstraint(Sketcher.Constraint("Parallel", 16, 20))
sketch8.addConstraint(Sketcher.Constraint("Parallel", 18, 21))
sketch8.addConstraint(Sketcher.Constraint("Parallel", 20, 23))
sketch8.addConstraint(Sketcher.Constraint("Perpendicular", 23, 24))
sketch8.addConstraint(Sketcher.Constraint("Perpendicular", 21, 25))
sketch8.addConstraint(Sketcher.Constraint("Parallel", 24, 27))
sketch8.addConstraint(Sketcher.Constraint("Parallel", 25, 28))
sketch8.addConstraint(Sketcher.Constraint("Parallel", 27, 30))
sketch8.addConstraint(Sketcher.Constraint("Parallel", 28, 31))
sketch8.addConstraint(Sketcher.Constraint("Parallel", 30, 33))
sketch8.addConstraint(Sketcher.Constraint("Parallel", 31, 34))
sketch8.addConstraint(Sketcher.Constraint("Parallel", 33, 36))
sketch8.addConstraint(Sketcher.Constraint("Parallel", 34, 37))
sketch8.addConstraint(Sketcher.Constraint("Parallel", 36, 39))
sketch8.addConstraint(Sketcher.Constraint("Parallel", 37, 40))
sketch8.addConstraint(Sketcher.Constraint("Parallel", 39, 43))
sketch8.addConstraint(Sketcher.Constraint("Parallel", 40, 44))
sketch8.addConstraint(Sketcher.Constraint("Parallel", 43, 46))
sketch8.addConstraint(Sketcher.Constraint("Parallel", 44, 47))
sketch8.addConstraint(Sketcher.Constraint("Horizontal", 2, 2, 5, 2))
sketch8.addConstraint(Sketcher.Constraint("Horizontal", 6, 2, 9, 2))
sketch8.addConstraint(Sketcher.Constraint("Horizontal", 11, 2, 12, 2))
sketch8.addConstraint(Sketcher.Constraint("Horizontal", 9, 2, 13, 2))
sketch8.addConstraint(Sketcher.Constraint("Horizontal", 8, 2, 14, 2))
sketch8.addConstraint(Sketcher.Constraint("Horizontal", 13, 2, 16, 2))
sketch8.addConstraint(Sketcher.Constraint("Horizontal", 1, 2, 18, 2))
sketch8.addConstraint(Sketcher.Constraint("Horizontal", 5, 2, 20, 2))
sketch8.addConstraint(Sketcher.Constraint("Horizontal", 4, 2, 21, 2))
sketch8.addConstraint(Sketcher.Constraint("Horizontal", 20, 2, 23, 2))
sketch8.addConstraint(Sketcher.Constraint("Horizontal", 26, 2, 28, 2))
sketch8.addConstraint(Sketcher.Constraint("Horizontal", 25, 2, 29, 2))
sketch8.addConstraint(Sketcher.Constraint("Horizontal", 32, 2, 34, 2))
sketch8.addConstraint(Sketcher.Constraint("Horizontal", 31, 2, 35, 2))
sketch8.addConstraint(Sketcher.Constraint("Horizontal", 24, 2, 36, 2))
sketch8.addConstraint(Sketcher.Constraint("Horizontal", 29, 2, 37, 2))
sketch8.addConstraint(Sketcher.Constraint("Horizontal", 28, 2, 38, 2))
sketch8.addConstraint(Sketcher.Constraint("Horizontal", 27, 2, 39, 2))
sketch8.addConstraint(Sketcher.Constraint("Horizontal", 38, 2, 40, 2))
sketch8.addConstraint(Sketcher.Constraint("Horizontal", 34, 2, 42, 2))
sketch8.addConstraint(Sketcher.Constraint("Horizontal", 33, 2, 43, 2))
sketch8.addConstraint(Sketcher.Constraint("Horizontal", 42, 2, 44, 2))
sketch8.addConstraint(Sketcher.Constraint("Horizontal", 35, 2, 45, 2))
sketch8.addConstraint(Sketcher.Constraint("Horizontal", 30, 2, 46, 2))
sketch8.addConstraint(Sketcher.Constraint("Vertical", 1, 2, 3, 2))
sketch8.addConstraint(Sketcher.Constraint("Vertical", 0, 2, 4, 2))
sketch8.addConstraint(Sketcher.Constraint("Vertical", 5, 2, 6, 2))
sketch8.addConstraint(Sketcher.Constraint("Vertical", 4, 2, 7, 2))
sketch8.addConstraint(Sketcher.Constraint("Vertical", 3, 2, 8, 2))
sketch8.addConstraint(Sketcher.Constraint("Vertical", 8, 2, 10, 2))
sketch8.addConstraint(Sketcher.Constraint("Vertical", 14, 2, 18, 2))
sketch8.addConstraint(Sketcher.Constraint("Vertical", 17, 2, 19, 2))
sketch8.addConstraint(Sketcher.Constraint("Vertical", 27, 2, 30, 2))
sketch8.addConstraint(Sketcher.Constraint("Vertical", 26, 2, 31, 2))
sketch8.addConstraint(Sketcher.Constraint("Vertical", 38, 2, 42, 2))
sketch8.addConstraint(Sketcher.Constraint("Equal", 11, 12))
sketch8.addConstraint(Sketcher.Constraint("Equal", 22, 26))
sketch8.addConstraint(Sketcher.Constraint("Equal", 29, 32))
sketch8.addConstraint(Sketcher.Constraint("Equal", 23, 24))
sketch8.addConstraint(Sketcher.Constraint("DistanceX", 11, 2, 12, 2, Q("1.5 in")))
sketch8.addConstraint(Sketcher.Constraint("DistanceY", 30, 2, 24, 2, Q("1.5 in")))
sketch8.addConstraint(Sketcher.Constraint("Angle", 0, Q("120.0008 deg")))
sketch8.addConstraint(Sketcher.Constraint("DistanceY", 3, 2, 1, 2, Q("0.135 in")))
sketch8.addConstraint(Sketcher.Constraint("DistanceX", -1, 1, 1, 2, Q("1.35 in")))
sketch8.addConstraint(Sketcher.Constraint("DistanceY", 6, 2, 5, 2, Q("4.504 in")))
sketch8.addConstraint(Sketcher.Constraint("DistanceX", 1, 2, 1, 1, 1.9797))
sketch8.addConstraint(Sketcher.Constraint("DistanceY", -1, 1, 0, 2, 53.1397))
sketch8.addConstraint(Sketcher.Constraint("DistanceX", -1, 1, 24, 2, 13.0037))
sketch8.addConstraint(Sketcher.Constraint("DistanceY", -1, 1, 24, 2, 33.5197))
sketch8.addConstraint(Sketcher.Constraint("DistanceX", -1, 1, 36, 2, 95.6553))
pocket7 = body.newObject("PartDesign::Pocket", "Pocket006")
pocket7.Profile = sketch8
pocket7.Type = "ThroughAll"

# Sketch on XY plane
sketch9 = body.newObject("Sketcher::SketchObject", "Sketch008")
sketch9.AttachmentSupport = (doc.getObject("XY_Plane"), [""])
sketch9.MapMode = "FlatFace"
sketch9.AttachmentOffset = App.Placement(V(0, 0, 0.125 * 25.4), App.Rotation())
add_polygon(sketch9, [(9.8795, 32.11), (9.8795, 11.79), (24.1035, 11.79), (24.1035, 32.11)])  # lines 0-3
sketch9.addConstraint(Sketcher.Constraint("Vertical", 0))
sketch9.addConstraint(Sketcher.Constraint("Horizontal", 1))
sketch9.addConstraint(Sketcher.Constraint("Vertical", 2))
sketch9.addConstraint(Sketcher.Constraint("Horizontal", 3))
sketch9.addConstraint(Sketcher.Constraint("DistanceY", 0, 2, 0, 1, Q("0.8 in")))
sketch9.addConstraint(Sketcher.Constraint("DistanceX", 1, 1, 1, 2, Q("0.56 in")))
sketch9.addConstraint(Sketcher.Constraint("DistanceX", -1, 1, 0, 2, 9.8795))
sketch9.addConstraint(Sketcher.Constraint("DistanceY", -1, 1, 0, 2, 11.79))
pocket8 = body.newObject("PartDesign::Pocket", "Pocket007")
pocket8.Profile = sketch9
pocket8.Type = "ThroughAll"

# Sketch on XY plane
sketch10 = body.newObject("Sketcher::SketchObject", "Sketch009")
sketch10.AttachmentSupport = (doc.getObject("XY_Plane"), [""])
sketch10.MapMode = "FlatFace"
sketch10.AttachmentOffset = App.Placement(V(0, 0, 0.125 * 25.4), App.Rotation())
add_polygon(sketch10, [(80.9995, -11.5668), (28.9295, -11.5668), (28.9295, -2.1688), (82.0155, -2.1688), (82.0155, -1.3306), (26.6435, -1.3306), (26.6435, 8.6658), (13.0037, 8.6658), (13.0037, 0.7888), (16.1279, 0.7888), (16.1279, -5.99), (13.0037, -5.99), (13.0037, -17.8533), (28.9295, -17.8533), (28.9295, -14.7418), (80.9995, -14.7418)])  # lines 0-15
sketch10.addConstraint(Sketcher.Constraint("Horizontal", 0))
sketch10.addConstraint(Sketcher.Constraint("Vertical", 1))
sketch10.addConstraint(Sketcher.Constraint("Horizontal", 2))
sketch10.addConstraint(Sketcher.Constraint("Vertical", 3))
sketch10.addConstraint(Sketcher.Constraint("Horizontal", 4))
sketch10.addConstraint(Sketcher.Constraint("Vertical", 5))
sketch10.addConstraint(Sketcher.Constraint("Horizontal", 6))
sketch10.addConstraint(Sketcher.Constraint("Vertical", 7))
sketch10.addConstraint(Sketcher.Constraint("Horizontal", 8))
sketch10.addConstraint(Sketcher.Constraint("Vertical", 9))
sketch10.addConstraint(Sketcher.Constraint("Horizontal", 10))
sketch10.addConstraint(Sketcher.Constraint("Vertical", 11))
sketch10.addConstraint(Sketcher.Constraint("Horizontal", 12))
sketch10.addConstraint(Sketcher.Constraint("Vertical", 13))
sketch10.addConstraint(Sketcher.Constraint("Horizontal", 14))
sketch10.addConstraint(Sketcher.Constraint("Vertical", 15))
sketch10.addConstraint(Sketcher.Constraint("Vertical", 7, 2, 10, 2))
sketch10.addConstraint(Sketcher.Constraint("Vertical", 1, 2, 12, 2))
sketch10.addConstraint(Sketcher.Constraint("DistanceX", 8, 1, 8, 2, Q("0.123 in")))
sketch10.addConstraint(Sketcher.Constraint("DistanceX", 0, 2, 0, 1, Q("2.05 in")))
sketch10.addConstraint(Sketcher.Constraint("DistanceX", 2, 1, 2, 2, Q("2.09 in")))
sketch10.addConstraint(Sketcher.Constraint("DistanceX", 4, 2, 4, 1, Q("2.18 in")))
sketch10.addConstraint(Sketcher.Constraint("DistanceY", 1, 1, 1, 2, Q("0.37 in")))
sketch10.addConstraint(Sketcher.Constraint("DistanceX", 6, 2, 6, 1, Q("0.537 in")))
sketch10.addConstraint(Sketcher.Constraint("DistanceY", 3, 1, 3, 2, Q("0.033 in")))
sketch10.addConstraint(Sketcher.Constraint("DistanceY", 15, 1, 15, 2, Q("0.125 in")))
sketch10.addConstraint(Sketcher.Constraint("DistanceY", 13, 1, 13, 2, Q("0.1225 in")))
sketch10.addConstraint(Sketcher.Constraint("DistanceY", 10, 2, 6, 2, Q("0.577 in")))
sketch10.addConstraint(Sketcher.Constraint("DistanceY", 5, 1, 5, 2, 9.9964))
sketch10.addConstraint(Sketcher.Constraint("DistanceY", 7, 2, 7, 1, 7.877))
sketch10.addConstraint(Sketcher.Constraint("DistanceX", -1, 1, 0, 2, 28.9295))
sketch10.addConstraint(Sketcher.Constraint("DistanceY", 0, 2, -1, 1, 11.5668))
pocket9 = body.newObject("PartDesign::Pocket", "Pocket008")
pocket9.Profile = sketch10
pocket9.Type = "ThroughAll"

# Sketch on XY plane
sketch11 = body.newObject("Sketcher::SketchObject", "Sketch010")
sketch11.AttachmentSupport = (doc.getObject("XY_Plane"), [""])
sketch11.MapMode = "FlatFace"
sketch11.AttachmentOffset = App.Placement(V(0, 0, 0.125 * 25.4), App.Rotation())
add_polygon(sketch11, [(91.1595, -33.2838), (91.1595, -11.5668), (80.9995, -11.5668), (80.9995, -33.2838)])  # lines 0-3
sketch11.addConstraint(Sketcher.Constraint("Vertical", 0))
sketch11.addConstraint(Sketcher.Constraint("Horizontal", 1))
sketch11.addConstraint(Sketcher.Constraint("Vertical", 2))
sketch11.addConstraint(Sketcher.Constraint("Horizontal", 3))
sketch11.addConstraint(Sketcher.Constraint("DistanceX", 1, 2, 1, 1, Q("0.4 in")))
sketch11.addConstraint(Sketcher.Constraint("DistanceY", 0, 1, 0, 2, Q("0.855 in")))
sketch11.addConstraint(Sketcher.Constraint("DistanceX", -1, 1, 0, 2, 91.1595))
sketch11.addConstraint(Sketcher.Constraint("DistanceY", 0, 2, -1, 1, 11.5668))
pocket10 = body.newObject("PartDesign::Pocket", "Pocket009")
pocket10.Profile = sketch11
pocket10.Type = "ThroughAll"

# Sketch on XY plane
sketch12 = body.newObject("Sketcher::SketchObject", "Sketch011")
sketch12.AttachmentSupport = (doc.getObject("XY_Plane"), [""])
sketch12.MapMode = "FlatFace"
add_polygon(sketch12, [(91.1595, 0.7888), (91.1595, -2.1688), (82.0155, -2.1688), (82.0155, 32.11), (98.7795, 32.11), (98.7795, 11.79), (95.6553, 11.79), (95.6553, 0.7888)])  # lines 0-7
sketch12.addConstraint(Sketcher.Constraint("Vertical", 0))
sketch12.addConstraint(Sketcher.Constraint("Horizontal", 1))
sketch12.addConstraint(Sketcher.Constraint("Vertical", 2))
sketch12.addConstraint(Sketcher.Constraint("Horizontal", 3))
sketch12.addConstraint(Sketcher.Constraint("Vertical", 4))
sketch12.addConstraint(Sketcher.Constraint("Horizontal", 5))
sketch12.addConstraint(Sketcher.Constraint("Vertical", 6))
sketch12.addConstraint(Sketcher.Constraint("Horizontal", 7))
sketch12.addConstraint(Sketcher.Constraint("DistanceY", 4, 2, 4, 1, Q("0.8 in")))
sketch12.addConstraint(Sketcher.Constraint("DistanceX", 1, 2, 1, 1, Q("0.36 in")))
sketch12.addConstraint(Sketcher.Constraint("DistanceX", 3, 1, 3, 2, Q("0.66 in")))
sketch12.addConstraint(Sketcher.Constraint("DistanceX", 5, 2, 5, 1, Q("0.123 in")))
sketch12.addConstraint(Sketcher.Constraint("DistanceY", 0, 2, 0, 1, 2.9576))
sketch12.addConstraint(Sketcher.Constraint("DistanceY", 2, 1, 2, 2, 34.2788))
sketch12.addConstraint(Sketcher.Constraint("DistanceX", -1, 1, 0, 2, 91.1595))
sketch12.addConstraint(Sketcher.Constraint("DistanceY", 0, 2, -1, 1, 2.1688))
pocket11 = body.newObject("PartDesign::Pocket", "Pocket010")
pocket11.Profile = sketch12
pocket11.Type = "ThroughAll"
pocket11.Reversed = True

doc.recompute()
